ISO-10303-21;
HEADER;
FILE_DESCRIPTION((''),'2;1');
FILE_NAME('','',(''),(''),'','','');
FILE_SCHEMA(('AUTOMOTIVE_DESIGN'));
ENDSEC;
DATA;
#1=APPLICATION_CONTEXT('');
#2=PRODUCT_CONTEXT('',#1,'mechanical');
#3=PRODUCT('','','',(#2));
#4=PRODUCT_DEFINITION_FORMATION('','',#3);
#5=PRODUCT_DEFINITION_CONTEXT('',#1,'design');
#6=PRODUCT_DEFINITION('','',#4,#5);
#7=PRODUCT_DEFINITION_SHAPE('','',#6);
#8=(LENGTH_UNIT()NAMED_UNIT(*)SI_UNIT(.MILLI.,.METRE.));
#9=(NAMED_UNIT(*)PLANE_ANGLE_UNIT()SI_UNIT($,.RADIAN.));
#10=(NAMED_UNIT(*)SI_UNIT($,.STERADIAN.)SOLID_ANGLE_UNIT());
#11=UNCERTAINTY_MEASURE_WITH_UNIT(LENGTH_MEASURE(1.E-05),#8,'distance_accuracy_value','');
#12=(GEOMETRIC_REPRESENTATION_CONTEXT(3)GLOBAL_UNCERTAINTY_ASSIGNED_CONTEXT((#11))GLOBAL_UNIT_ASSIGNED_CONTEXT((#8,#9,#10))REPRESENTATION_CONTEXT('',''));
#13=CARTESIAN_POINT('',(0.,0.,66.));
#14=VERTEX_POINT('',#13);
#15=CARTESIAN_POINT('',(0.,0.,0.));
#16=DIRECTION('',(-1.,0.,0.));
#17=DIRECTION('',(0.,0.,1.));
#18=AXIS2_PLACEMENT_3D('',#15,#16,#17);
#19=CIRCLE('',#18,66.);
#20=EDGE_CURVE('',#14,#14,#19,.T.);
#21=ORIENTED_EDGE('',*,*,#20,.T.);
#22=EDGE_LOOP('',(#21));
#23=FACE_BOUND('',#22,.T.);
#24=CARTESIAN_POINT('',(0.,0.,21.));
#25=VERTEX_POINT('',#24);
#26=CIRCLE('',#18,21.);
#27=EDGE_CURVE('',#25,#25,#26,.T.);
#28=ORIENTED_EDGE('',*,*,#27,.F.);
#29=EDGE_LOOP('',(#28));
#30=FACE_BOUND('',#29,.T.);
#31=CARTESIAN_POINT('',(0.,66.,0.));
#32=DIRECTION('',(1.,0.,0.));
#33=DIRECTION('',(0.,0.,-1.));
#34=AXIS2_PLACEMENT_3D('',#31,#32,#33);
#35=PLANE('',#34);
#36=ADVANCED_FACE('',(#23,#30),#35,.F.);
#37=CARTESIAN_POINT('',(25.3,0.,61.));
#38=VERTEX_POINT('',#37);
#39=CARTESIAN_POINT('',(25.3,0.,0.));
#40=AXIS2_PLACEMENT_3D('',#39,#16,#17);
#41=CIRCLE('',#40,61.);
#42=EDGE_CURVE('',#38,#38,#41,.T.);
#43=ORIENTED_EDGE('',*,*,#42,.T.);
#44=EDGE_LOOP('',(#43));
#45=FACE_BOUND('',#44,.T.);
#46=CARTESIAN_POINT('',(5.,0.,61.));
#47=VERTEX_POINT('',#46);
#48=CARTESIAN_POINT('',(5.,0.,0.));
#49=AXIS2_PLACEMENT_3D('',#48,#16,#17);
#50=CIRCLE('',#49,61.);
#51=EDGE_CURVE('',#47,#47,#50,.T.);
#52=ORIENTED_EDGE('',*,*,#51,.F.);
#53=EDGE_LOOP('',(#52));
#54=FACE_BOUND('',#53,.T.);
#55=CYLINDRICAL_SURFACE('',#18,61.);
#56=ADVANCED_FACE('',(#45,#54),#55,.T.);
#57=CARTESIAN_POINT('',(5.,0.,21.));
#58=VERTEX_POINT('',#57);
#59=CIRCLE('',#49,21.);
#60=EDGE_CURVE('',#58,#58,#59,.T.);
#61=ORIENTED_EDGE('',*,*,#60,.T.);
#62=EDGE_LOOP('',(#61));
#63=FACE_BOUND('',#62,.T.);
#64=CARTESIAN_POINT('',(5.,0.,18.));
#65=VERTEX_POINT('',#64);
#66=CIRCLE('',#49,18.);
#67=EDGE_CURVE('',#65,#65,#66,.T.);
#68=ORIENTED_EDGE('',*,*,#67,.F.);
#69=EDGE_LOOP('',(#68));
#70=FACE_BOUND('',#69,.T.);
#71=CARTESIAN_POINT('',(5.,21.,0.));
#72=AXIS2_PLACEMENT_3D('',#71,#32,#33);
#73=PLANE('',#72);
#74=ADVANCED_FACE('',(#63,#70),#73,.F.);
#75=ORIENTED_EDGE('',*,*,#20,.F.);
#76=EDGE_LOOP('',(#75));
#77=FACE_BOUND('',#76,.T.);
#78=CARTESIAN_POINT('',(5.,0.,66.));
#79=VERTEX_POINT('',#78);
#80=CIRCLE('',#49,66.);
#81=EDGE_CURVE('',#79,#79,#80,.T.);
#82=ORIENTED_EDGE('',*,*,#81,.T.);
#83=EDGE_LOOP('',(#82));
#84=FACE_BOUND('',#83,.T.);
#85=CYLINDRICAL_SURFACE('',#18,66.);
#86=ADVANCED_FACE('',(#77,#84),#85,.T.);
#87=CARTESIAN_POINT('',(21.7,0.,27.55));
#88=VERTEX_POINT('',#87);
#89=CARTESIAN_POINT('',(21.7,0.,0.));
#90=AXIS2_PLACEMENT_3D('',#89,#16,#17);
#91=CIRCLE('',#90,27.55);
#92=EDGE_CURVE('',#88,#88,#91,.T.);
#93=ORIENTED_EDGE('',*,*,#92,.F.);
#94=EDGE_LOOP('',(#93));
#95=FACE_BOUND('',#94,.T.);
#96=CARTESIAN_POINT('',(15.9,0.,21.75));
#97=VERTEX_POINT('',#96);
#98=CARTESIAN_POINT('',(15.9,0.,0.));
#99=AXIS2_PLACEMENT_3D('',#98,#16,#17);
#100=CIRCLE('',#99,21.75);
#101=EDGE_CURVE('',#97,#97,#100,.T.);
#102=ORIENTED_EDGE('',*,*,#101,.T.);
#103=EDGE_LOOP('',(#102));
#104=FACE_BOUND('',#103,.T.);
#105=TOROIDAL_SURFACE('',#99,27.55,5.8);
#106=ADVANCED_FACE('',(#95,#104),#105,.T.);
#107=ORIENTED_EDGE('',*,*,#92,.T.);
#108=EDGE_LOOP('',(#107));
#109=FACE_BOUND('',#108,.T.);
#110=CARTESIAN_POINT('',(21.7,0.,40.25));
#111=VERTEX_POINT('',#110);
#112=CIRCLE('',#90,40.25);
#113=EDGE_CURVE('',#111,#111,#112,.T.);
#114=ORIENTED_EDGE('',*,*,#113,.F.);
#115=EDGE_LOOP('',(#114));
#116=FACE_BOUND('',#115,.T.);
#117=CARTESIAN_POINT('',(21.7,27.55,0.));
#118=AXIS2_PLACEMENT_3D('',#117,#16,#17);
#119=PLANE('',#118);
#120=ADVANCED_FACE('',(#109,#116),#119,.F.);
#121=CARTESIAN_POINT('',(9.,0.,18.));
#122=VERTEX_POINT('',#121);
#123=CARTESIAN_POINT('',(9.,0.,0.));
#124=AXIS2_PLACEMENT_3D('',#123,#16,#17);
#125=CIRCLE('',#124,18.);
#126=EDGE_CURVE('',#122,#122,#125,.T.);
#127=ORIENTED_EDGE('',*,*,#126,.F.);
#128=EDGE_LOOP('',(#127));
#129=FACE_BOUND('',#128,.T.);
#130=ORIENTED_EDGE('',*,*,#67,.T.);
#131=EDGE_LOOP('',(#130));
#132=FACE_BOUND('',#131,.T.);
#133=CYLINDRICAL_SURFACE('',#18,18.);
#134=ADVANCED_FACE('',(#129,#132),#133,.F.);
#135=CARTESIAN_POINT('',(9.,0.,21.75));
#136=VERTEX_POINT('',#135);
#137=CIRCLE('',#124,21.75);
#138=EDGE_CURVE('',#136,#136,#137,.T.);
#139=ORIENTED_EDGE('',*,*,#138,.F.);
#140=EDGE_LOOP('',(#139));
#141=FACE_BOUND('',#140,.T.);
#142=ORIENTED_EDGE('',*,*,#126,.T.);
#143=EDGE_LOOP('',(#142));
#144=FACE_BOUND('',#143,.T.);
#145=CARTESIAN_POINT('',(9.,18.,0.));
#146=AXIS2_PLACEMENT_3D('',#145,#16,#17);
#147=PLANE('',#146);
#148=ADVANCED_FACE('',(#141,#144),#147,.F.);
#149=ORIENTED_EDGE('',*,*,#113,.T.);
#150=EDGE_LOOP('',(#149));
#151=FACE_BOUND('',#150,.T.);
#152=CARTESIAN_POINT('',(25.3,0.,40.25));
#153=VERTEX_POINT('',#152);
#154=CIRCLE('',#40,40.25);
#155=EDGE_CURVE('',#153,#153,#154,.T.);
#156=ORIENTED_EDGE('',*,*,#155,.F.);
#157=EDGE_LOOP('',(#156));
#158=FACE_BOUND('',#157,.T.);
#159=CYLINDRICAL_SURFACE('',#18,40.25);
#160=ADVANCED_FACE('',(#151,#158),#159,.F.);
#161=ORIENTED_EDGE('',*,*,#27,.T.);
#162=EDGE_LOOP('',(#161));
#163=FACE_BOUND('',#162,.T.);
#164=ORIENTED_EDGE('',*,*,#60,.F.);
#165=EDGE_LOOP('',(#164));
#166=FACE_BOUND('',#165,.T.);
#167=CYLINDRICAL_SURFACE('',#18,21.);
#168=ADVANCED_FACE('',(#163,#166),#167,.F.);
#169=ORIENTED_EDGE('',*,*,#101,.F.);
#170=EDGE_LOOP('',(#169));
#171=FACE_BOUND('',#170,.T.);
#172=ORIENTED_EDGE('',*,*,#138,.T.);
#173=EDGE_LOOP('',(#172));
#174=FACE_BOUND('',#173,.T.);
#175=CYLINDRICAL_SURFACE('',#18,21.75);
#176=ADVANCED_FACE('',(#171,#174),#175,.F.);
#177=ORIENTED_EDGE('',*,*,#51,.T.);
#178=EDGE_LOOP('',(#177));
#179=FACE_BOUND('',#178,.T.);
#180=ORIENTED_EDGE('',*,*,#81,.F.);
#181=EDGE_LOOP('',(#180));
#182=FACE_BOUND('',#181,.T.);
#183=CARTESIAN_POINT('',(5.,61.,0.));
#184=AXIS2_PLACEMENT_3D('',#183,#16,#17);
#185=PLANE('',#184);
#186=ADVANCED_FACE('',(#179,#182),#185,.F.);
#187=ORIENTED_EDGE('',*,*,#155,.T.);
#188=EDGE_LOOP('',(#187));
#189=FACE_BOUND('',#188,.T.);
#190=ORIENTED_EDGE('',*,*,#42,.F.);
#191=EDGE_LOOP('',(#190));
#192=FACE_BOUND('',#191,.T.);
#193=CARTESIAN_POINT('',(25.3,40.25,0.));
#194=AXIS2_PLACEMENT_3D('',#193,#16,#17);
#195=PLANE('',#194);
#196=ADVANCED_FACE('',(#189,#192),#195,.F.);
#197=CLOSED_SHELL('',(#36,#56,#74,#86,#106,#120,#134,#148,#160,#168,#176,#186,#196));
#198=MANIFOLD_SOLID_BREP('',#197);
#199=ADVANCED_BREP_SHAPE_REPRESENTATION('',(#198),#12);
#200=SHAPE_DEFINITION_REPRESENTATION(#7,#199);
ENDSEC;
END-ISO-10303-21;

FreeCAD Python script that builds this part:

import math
import FreeCAD as App
import Part
import Sketcher
from FreeCAD import Vector

doc = App.newDocument("Part")
body = doc.addObject("PartDesign::Body", "Body")

# Sketch on XY plane
sketch1 = body.newObject("Sketcher::SketchObject", "Sketch")
sketch1.AttachmentSupport = (doc.getObject("XY_Plane"), [""])
sketch1.MapMode = "FlatFace"
sketch1.addGeometry([
    Part.LineSegment(Vector(0, 21, 0), Vector(5, 21, 0)),  # 0
    Part.LineSegment(Vector(5, 21, 0), Vector(5, 18, 0)),  # 1
    Part.LineSegment(Vector(5, 18, 0), Vector(9, 18, 0)),  # 2
    Part.LineSegment(Vector(9, 18, 0), Vector(9, 21.8, 0)),  # 3
    Part.LineSegment(Vector(9, 21.8, 0), Vector(15.9, 21.8, 0)),  # 4
    Part.ArcOfCircle(Part.Circle(Vector(15.9, 27.6, 0), Vector(0, 0, 1), 5.8), math.radians(-90), math.radians(0)),  # 5
    Part.LineSegment(Vector(21.7, 27.6, 0), Vector(21.7, 40.2, 0)),  # 6
    Part.LineSegment(Vector(21.7, 40.2, 0), Vector(25.3, 40.2, 0)),  # 7
    Part.LineSegment(Vector(25.3, 40.2, 0), Vector(25.3, 61, 0)),  # 8
    Part.LineSegment(Vector(25.3, 61, 0), Vector(5, 61, 0)),  # 9
    Part.LineSegment(Vector(5, 61, 0), Vector(5, 66, 0)),  # 10
    Part.LineSegment(Vector(5, 66, 0), Vector(0, 66, 0)),  # 11
    Part.LineSegment(Vector(0, 66, 0), Vector(0, 21, 0)),  # 12
], False)
sketch1.addConstraint([
    Sketcher.Constraint("Coincident", 0, 2, 1, 1),
    Sketcher.Constraint("Coincident", 1, 2, 2, 1),
    Sketcher.Constraint("Coincident", 2, 2, 3, 1),
    Sketcher.Constraint("Coincident", 3, 2, 4, 1),
    Sketcher.Constraint("Tangent", 4, 2, 5, 1),
    Sketcher.Constraint("Tangent", 5, 2, 6, 1),
    Sketcher.Constraint("Coincident", 6, 2, 7, 1),
    Sketcher.Constraint("Coincident", 7, 2, 8, 1),
    Sketcher.Constraint("Coincident", 8, 2, 9, 1),
    Sketcher.Constraint("Coincident", 9, 2, 10, 1),
    Sketcher.Constraint("Coincident", 10, 2, 11, 1),
    Sketcher.Constraint("Coincident", 11, 2, 12, 1),
    Sketcher.Constraint("Coincident", 12, 2, 0, 1),
    Sketcher.Constraint("Horizontal", 0),
    Sketcher.Constraint("Vertical", 1),
    Sketcher.Constraint("Horizontal", 2),
    Sketcher.Constraint("Vertical", 3),
    Sketcher.Constraint("Horizontal", 4),
    Sketcher.Constraint("Vertical", 6),
    Sketcher.Constraint("Horizontal", 7),
    Sketcher.Constraint("Vertical", 8),
    Sketcher.Constraint("Horizontal", 9),
    Sketcher.Constraint("Vertical", 10),
    Sketcher.Constraint("Horizontal", 11),
    Sketcher.Constraint("Vertical", 12),
    Sketcher.Constraint("PointOnObject", 11, 2, -2),
    Sketcher.Constraint("Vertical", 1, 2, 9, 2),
    Sketcher.Constraint("Equal", 11, 10),
    Sketcher.Constraint("Radius", 5, 5.8),
    Sketcher.Constraint("DistanceX", 0, 1, 0, 2, 5.0),
    Sketcher.Constraint("DistanceX", 2, 1, 2, 2, 4.0),
    Sketcher.Constraint("DistanceY", 1, 2, 1, 1, 3.0),
    Sketcher.Constraint("DistanceY", 12, 2, 12, 1, 45.0),
    Sketcher.Constraint("DistanceX", 4, 1, 4, 2, 6.9),
    Sketcher.Constraint("DistanceX", 7, 1, 7, 2, 3.6),
    Sketcher.Constraint("DistanceY", 6, 1, 6, 2, 12.7),
    Sketcher.Constraint("DistanceY", -1, 1, 0, 2, 21.0),
    Sketcher.Constraint("DistanceY", 3, 1, 3, 2, 3.75),
])
revolution = body.newObject("PartDesign::Revolution", "Revolution")
revolution.Profile = sketch1
revolution.ReferenceAxis = (sketch1, ["H_Axis"])
revolution.Angle = 360

doc.recompute()
